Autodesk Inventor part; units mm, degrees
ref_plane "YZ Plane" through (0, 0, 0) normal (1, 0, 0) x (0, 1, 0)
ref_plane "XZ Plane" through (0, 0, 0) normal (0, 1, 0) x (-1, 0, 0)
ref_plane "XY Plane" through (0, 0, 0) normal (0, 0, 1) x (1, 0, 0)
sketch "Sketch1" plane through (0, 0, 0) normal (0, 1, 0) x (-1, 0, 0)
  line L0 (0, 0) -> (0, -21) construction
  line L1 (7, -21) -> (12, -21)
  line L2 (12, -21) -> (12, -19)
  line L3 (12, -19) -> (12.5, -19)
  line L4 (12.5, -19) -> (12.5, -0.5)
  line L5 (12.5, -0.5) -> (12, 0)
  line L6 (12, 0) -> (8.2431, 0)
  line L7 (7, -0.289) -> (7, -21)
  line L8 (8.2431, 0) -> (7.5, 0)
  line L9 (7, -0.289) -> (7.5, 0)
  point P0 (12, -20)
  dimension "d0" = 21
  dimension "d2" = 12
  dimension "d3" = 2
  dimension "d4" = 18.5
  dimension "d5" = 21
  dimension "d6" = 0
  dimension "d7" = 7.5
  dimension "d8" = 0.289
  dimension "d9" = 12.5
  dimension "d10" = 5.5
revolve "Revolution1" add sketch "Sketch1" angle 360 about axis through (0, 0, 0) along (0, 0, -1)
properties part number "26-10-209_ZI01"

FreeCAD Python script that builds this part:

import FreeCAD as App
import Part
import Sketcher
from FreeCAD import Vector


def add_polygon(sketch, points):
    """Adds a closed chain of lines whose ends are joined by coincident constraints."""
    first, n = sketch.GeometryCount, len(points)
    for a, b in zip(points, points[1:] + points[:1]):
        sketch.addGeometry(Part.LineSegment(App.Vector(*a, 0), App.Vector(*b, 0)), False)
    for i in range(n):
        sketch.addConstraint(Sketcher.Constraint("Coincident", first + i, 2, first + (i + 1) % n, 1))

doc = App.newDocument("Part")
body = doc.addObject("PartDesign::Body", "Body")

sketch1 = doc.addObject("Sketcher::SketchObject", "Sketch")
body.addObject(sketch1)
sketch1.AttachmentSupport = (doc.XZ_Plane, [""])
sketch1.MapMode = "FlatFace"
add_polygon(sketch1, [(-7, -0.3), (-7, -21), (-12, -21), (-12, -19), (-12.5, -19), (-12.5, -0.5), (-12, 0), (-7.5, 0)])
sketch1.addConstraint([
    Sketcher.Constraint("Vertical", 0),
    Sketcher.Constraint("Horizontal", 1),
    Sketcher.Constraint("Vertical", 2),
    Sketcher.Constraint("Horizontal", 3),
    Sketcher.Constraint("Vertical", 4),
    Sketcher.Constraint("Horizontal", 6),
    Sketcher.Constraint("PointOnObject", 5, 2, -1),
    Sketcher.Constraint("Vertical", 2, 2, 5, 2),
    Sketcher.Constraint("DistanceY", 2, 1, 2, 2, 2.0),
    Sketcher.Constraint("DistanceY", 4, 1, 4, 2, 18.5),
    Sketcher.Constraint("DistanceY", 0, 2, -1, 1, 21.0),
    Sketcher.Constraint("DistanceX", 1, 2, -1, 1, 12.0),
    Sketcher.Constraint("DistanceX", 3, 2, -1, 1, 12.5),
    Sketcher.Constraint("DistanceX", 6, 2, -1, 1, 7.5),
    Sketcher.Constraint("DistanceX", 3, 2, 0, 2, 5.5),
    Sketcher.Constraint("DistanceY", 7, 2, -1, 1, 0.289),
])
revolution = doc.addObject("PartDesign::Revolution", "Revolution")
body.addObject(revolution)
revolution.Profile = sketch1
revolution.ReferenceAxis = (sketch1, ["V_Axis"])
revolution.Angle = 360

doc.recompute()
